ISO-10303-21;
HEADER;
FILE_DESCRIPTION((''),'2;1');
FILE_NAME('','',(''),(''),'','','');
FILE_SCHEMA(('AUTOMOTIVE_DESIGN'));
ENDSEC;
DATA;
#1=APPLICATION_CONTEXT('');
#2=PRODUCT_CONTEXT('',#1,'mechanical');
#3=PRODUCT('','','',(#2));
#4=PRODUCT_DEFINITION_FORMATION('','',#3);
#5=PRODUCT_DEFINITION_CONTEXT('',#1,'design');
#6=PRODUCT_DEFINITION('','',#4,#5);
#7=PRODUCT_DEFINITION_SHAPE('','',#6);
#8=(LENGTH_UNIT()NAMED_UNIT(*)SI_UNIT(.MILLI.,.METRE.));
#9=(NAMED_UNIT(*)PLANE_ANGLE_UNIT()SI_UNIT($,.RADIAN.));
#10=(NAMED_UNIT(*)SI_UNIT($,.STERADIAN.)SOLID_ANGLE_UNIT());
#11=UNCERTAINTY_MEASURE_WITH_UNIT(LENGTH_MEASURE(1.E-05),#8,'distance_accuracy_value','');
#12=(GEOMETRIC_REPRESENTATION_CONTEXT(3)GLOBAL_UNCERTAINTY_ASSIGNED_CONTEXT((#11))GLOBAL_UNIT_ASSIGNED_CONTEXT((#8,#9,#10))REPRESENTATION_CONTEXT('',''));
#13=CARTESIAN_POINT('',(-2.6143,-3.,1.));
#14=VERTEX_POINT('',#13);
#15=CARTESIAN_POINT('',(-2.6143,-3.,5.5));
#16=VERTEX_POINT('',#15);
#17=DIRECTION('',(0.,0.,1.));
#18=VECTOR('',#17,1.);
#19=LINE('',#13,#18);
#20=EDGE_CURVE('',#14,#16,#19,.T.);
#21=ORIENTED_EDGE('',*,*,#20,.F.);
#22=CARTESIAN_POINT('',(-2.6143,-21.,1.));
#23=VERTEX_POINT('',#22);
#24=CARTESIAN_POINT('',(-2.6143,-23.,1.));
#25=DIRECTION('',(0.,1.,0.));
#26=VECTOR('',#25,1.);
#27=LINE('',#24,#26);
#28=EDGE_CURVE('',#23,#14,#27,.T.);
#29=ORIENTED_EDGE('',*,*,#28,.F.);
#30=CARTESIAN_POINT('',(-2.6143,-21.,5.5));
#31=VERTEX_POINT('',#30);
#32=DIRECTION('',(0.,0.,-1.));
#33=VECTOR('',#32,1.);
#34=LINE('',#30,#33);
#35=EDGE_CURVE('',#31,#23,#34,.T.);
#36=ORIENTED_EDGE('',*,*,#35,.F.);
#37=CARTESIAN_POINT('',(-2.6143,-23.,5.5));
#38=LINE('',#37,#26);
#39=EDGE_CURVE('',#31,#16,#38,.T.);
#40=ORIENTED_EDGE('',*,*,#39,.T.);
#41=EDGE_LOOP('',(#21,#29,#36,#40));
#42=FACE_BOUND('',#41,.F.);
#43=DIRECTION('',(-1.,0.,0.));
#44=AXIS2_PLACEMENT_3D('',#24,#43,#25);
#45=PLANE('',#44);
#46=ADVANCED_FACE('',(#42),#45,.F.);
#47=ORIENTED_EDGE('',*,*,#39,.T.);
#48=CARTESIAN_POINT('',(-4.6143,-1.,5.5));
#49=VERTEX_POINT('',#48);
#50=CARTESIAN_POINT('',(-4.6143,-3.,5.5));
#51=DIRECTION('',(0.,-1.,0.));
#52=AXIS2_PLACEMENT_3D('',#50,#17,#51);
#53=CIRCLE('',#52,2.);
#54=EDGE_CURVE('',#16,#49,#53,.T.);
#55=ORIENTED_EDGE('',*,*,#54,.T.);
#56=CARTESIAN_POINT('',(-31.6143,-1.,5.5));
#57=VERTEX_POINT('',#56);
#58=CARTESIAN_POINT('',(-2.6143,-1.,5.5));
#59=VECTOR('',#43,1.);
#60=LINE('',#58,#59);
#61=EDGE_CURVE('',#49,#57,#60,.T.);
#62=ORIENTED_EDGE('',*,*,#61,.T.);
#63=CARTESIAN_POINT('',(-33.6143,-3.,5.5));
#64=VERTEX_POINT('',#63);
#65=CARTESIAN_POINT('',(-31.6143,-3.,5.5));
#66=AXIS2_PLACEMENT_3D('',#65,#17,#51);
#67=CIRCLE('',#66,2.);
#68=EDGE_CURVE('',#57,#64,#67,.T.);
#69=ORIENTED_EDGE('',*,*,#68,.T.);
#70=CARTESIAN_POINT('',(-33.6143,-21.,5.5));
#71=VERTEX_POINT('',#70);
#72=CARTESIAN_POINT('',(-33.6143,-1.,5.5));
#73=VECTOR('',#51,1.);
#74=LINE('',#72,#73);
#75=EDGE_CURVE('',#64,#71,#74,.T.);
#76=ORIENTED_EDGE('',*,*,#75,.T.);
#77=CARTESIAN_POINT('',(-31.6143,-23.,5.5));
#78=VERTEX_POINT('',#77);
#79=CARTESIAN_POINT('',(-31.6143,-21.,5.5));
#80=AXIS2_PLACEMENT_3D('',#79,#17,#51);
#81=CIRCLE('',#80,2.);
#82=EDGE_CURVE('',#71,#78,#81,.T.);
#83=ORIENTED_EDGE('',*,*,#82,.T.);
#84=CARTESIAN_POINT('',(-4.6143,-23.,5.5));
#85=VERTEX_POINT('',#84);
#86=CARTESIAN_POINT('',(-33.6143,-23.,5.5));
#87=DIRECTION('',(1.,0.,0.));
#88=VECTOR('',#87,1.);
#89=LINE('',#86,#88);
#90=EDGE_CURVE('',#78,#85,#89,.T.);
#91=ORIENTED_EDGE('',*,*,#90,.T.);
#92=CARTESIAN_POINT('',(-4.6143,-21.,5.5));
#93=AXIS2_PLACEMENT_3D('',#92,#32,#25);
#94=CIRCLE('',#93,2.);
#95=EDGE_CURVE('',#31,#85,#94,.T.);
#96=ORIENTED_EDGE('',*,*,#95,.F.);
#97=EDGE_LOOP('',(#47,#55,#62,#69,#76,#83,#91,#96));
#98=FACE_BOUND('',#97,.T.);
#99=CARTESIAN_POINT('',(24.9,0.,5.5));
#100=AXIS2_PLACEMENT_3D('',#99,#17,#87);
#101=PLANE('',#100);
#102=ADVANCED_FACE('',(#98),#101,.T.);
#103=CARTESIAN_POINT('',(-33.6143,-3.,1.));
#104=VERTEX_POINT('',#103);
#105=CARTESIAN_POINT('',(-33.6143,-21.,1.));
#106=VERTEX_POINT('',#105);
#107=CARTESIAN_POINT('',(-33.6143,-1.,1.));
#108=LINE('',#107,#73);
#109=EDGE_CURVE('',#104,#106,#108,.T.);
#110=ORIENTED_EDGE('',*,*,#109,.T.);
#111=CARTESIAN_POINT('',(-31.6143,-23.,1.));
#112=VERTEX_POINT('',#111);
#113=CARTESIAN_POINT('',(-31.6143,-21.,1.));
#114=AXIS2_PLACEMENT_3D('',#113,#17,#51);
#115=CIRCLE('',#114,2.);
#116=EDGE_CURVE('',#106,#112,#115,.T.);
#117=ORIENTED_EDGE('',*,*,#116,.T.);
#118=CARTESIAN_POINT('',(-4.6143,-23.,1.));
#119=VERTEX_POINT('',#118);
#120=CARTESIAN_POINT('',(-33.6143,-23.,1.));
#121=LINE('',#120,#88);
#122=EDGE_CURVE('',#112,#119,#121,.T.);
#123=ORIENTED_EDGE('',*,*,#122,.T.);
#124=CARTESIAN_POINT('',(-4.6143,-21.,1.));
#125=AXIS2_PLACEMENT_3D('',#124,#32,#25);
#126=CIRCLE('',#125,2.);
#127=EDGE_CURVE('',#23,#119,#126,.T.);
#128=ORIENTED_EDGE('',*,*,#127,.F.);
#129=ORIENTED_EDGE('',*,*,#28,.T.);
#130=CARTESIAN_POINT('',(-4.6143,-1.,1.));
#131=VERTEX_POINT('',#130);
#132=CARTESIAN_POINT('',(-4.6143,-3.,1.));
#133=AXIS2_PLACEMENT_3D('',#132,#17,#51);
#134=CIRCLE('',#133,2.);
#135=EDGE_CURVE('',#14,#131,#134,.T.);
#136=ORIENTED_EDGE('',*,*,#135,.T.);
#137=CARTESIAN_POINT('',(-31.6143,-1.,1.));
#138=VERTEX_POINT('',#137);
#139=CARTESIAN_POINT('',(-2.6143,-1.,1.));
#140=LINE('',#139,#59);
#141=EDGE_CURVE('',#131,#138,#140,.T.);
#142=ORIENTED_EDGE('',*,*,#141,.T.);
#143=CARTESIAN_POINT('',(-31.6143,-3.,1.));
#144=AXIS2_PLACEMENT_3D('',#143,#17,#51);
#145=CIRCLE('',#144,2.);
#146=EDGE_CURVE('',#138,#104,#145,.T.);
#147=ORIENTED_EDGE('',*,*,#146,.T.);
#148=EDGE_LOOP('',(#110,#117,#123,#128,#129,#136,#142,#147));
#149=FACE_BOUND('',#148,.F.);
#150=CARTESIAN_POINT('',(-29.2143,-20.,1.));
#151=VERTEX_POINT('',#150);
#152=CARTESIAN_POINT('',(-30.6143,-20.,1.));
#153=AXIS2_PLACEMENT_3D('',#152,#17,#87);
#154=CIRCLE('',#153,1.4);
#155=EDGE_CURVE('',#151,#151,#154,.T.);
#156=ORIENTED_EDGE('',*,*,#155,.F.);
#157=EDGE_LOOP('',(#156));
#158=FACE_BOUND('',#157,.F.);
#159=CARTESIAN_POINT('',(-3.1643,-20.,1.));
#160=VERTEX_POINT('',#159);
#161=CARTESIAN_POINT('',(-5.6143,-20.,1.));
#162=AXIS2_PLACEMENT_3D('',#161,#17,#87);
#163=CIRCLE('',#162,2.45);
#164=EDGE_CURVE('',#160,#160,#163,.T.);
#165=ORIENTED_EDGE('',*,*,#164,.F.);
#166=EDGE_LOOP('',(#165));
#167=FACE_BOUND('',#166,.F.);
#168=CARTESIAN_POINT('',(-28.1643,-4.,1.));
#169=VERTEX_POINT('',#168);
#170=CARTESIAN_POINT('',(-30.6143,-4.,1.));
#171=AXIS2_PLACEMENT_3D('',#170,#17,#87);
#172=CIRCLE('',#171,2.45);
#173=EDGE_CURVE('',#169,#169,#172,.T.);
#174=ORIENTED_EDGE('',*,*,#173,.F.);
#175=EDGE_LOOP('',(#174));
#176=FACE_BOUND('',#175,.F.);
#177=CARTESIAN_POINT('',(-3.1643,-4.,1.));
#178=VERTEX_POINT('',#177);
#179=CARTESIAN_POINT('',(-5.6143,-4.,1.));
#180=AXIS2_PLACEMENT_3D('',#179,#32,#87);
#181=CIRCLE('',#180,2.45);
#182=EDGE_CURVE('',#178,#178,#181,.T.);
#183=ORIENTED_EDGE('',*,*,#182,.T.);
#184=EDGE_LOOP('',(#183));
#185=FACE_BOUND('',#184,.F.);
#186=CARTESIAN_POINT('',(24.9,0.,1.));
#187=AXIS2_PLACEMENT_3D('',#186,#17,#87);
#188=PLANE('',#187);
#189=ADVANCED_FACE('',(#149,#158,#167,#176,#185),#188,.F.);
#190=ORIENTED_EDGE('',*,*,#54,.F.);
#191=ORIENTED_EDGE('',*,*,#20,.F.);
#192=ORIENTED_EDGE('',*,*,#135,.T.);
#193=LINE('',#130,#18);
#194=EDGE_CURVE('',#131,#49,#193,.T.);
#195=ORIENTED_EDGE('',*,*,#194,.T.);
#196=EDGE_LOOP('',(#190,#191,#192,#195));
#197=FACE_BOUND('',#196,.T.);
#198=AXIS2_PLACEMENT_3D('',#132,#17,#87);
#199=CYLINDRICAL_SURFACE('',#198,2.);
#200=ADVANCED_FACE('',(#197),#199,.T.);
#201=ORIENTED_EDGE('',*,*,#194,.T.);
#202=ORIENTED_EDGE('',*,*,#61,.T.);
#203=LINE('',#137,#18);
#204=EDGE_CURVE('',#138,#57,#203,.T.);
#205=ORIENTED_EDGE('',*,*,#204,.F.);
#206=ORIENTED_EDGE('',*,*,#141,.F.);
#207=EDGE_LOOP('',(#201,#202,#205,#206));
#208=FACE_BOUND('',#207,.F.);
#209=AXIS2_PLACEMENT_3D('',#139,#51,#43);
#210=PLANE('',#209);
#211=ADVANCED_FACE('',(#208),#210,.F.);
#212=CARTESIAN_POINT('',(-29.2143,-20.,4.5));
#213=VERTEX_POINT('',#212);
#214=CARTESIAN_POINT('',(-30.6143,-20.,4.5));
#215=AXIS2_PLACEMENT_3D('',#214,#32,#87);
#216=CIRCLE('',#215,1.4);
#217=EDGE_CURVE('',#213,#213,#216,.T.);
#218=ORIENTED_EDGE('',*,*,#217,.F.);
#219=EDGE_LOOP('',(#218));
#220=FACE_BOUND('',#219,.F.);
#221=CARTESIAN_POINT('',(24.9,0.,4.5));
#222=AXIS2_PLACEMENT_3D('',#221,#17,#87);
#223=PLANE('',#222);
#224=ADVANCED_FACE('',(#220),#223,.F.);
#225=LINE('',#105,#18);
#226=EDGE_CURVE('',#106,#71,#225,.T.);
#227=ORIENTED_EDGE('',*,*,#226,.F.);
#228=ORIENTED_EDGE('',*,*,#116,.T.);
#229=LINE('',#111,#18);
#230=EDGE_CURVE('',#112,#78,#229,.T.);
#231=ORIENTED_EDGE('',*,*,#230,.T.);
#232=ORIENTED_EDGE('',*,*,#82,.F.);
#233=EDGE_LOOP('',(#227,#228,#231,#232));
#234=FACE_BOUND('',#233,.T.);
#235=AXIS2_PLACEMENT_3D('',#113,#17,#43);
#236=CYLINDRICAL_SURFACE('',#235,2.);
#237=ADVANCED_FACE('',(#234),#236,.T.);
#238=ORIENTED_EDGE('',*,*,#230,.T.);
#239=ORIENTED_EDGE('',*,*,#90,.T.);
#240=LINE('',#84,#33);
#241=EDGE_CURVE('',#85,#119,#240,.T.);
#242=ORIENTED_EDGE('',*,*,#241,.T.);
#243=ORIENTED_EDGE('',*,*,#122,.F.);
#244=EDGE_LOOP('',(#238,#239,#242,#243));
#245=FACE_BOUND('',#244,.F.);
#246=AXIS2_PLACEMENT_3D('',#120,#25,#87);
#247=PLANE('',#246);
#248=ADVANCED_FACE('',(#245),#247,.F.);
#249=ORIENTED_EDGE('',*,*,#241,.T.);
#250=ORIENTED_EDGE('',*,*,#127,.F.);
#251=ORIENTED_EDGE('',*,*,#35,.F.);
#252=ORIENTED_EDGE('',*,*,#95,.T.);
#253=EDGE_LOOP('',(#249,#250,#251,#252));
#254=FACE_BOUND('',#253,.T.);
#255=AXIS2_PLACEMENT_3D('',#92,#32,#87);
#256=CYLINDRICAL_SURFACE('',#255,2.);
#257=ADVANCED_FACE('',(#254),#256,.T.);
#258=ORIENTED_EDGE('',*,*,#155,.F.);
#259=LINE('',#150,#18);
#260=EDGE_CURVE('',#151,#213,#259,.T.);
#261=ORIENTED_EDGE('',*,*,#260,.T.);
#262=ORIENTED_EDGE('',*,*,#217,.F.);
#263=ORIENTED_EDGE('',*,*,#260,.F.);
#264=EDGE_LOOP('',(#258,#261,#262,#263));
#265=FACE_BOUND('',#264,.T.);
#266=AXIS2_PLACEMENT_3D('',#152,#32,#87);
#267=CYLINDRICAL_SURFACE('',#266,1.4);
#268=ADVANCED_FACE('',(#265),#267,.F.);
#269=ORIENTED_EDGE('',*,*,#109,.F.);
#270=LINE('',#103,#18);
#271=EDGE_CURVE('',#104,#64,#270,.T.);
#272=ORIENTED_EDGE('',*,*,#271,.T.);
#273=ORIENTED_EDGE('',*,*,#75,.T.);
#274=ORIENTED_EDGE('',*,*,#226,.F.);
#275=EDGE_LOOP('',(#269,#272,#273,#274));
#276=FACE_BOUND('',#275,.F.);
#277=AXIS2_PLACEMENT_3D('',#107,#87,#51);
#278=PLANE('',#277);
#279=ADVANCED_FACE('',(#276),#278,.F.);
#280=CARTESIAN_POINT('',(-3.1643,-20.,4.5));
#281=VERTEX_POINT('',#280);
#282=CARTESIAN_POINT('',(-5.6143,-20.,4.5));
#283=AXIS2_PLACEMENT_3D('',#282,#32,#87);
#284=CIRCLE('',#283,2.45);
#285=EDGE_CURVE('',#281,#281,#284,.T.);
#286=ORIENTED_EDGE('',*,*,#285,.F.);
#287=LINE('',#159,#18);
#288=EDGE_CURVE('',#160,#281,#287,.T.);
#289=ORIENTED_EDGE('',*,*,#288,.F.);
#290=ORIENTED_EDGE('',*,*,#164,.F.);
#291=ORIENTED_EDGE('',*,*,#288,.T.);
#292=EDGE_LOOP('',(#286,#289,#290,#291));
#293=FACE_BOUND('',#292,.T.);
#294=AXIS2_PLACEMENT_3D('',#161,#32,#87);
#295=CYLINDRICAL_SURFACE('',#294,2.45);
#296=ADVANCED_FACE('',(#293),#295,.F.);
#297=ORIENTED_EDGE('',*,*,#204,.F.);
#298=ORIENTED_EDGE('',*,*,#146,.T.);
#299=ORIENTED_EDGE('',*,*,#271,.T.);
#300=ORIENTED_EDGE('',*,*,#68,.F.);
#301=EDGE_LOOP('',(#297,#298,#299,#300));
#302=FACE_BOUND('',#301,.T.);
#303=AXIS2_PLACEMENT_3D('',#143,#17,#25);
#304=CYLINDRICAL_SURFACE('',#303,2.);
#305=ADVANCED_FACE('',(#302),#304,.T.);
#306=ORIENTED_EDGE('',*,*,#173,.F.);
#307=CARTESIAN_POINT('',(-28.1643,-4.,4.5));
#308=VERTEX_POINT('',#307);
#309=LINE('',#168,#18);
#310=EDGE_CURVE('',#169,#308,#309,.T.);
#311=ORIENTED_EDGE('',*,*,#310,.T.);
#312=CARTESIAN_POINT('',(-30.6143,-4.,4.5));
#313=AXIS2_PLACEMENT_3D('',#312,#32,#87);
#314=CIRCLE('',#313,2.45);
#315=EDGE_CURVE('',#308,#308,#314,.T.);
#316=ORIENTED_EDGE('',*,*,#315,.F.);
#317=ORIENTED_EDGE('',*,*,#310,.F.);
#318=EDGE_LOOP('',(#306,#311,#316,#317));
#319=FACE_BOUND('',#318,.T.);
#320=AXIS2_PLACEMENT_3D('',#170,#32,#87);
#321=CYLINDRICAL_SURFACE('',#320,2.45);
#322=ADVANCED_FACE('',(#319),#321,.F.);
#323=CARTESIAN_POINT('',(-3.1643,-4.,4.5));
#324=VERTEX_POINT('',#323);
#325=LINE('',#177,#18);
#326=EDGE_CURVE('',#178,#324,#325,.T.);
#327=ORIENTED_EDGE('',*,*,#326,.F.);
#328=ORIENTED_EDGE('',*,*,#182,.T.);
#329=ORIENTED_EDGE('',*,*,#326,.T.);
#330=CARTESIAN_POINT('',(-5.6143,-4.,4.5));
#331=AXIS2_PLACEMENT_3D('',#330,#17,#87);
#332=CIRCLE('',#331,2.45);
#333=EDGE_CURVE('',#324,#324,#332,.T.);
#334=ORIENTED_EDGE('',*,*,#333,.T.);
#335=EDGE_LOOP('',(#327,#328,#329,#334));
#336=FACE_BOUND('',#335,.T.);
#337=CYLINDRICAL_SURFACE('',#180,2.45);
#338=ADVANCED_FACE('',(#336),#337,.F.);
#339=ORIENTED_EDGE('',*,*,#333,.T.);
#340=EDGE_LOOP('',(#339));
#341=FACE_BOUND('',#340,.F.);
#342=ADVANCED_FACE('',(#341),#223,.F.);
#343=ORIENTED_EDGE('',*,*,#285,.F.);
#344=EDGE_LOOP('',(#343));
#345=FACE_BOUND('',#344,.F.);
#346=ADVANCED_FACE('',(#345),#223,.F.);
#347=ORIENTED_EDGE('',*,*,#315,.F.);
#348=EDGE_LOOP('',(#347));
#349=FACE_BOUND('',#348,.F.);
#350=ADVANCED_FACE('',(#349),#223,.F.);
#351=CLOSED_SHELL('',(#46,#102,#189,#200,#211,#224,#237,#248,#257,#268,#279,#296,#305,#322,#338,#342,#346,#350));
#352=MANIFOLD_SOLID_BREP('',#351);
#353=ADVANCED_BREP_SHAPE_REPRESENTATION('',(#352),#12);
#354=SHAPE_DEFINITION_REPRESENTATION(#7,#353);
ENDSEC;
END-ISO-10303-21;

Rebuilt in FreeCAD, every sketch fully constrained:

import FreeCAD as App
import Part
import Sketcher


def edges_at(feature, points):
    """Names of the edges that pass closest to the given points."""
    edges = feature.Shape.Edges
    near = lambda p: min(range(len(edges)), key=lambda i: edges[i].distToShape(Part.Vertex(*p))[0])
    return sorted({f"Edge{near(p) + 1}" for p in points})


def add_polygon(sketch, points):
    """Adds a closed chain of lines whose ends are joined by coincident constraints."""
    first, n = sketch.GeometryCount, len(points)
    for a, b in zip(points, points[1:] + points[:1]):
        sketch.addGeometry(Part.LineSegment(App.Vector(*a, 0), App.Vector(*b, 0)), False)
    for i in range(n):
        sketch.addConstraint(Sketcher.Constraint("Coincident", first + i, 2, first + (i + 1) % n, 1))

doc = App.newDocument("Part")
body = doc.addObject("PartDesign::Body", "Body")

# Sketch on XY plane
sketch1 = body.newObject("Sketcher::SketchObject", "Sketch")
sketch1.AttachmentSupport = (doc.getObject("XY_Plane"), [""])
sketch1.MapMode = "FlatFace"
sketch1.AttachmentOffset = App.Placement(App.Vector(0, 0, 1), App.Rotation())
add_polygon(sketch1, [(-2.6, -23), (-2.6, -1), (-33.6, -1), (-33.6, -23)])  # lines 0-3
sketch1.addGeometry(Part.Circle(App.Vector(-5.6, -4, 0), App.Vector(0, 0, 1), 2.5), False)  # 4
sketch1.addGeometry(Part.Circle(App.Vector(-5.6, -20, 0), App.Vector(0, 0, 1), 2.5), False)  # 5
sketch1.addGeometry(Part.Circle(App.Vector(-30.6, -20, 0), App.Vector(0, 0, 1), 1.4), False)  # 6
sketch1.addGeometry(Part.Circle(App.Vector(-30.6, -4, 0), App.Vector(0, 0, 1), 2.5), False)  # 7
sketch1.addConstraint([
    Sketcher.Constraint("Vertical", 0),
    Sketcher.Constraint("Horizontal", 1),
    Sketcher.Constraint("Vertical", 2),
    Sketcher.Constraint("Horizontal", 3),
    Sketcher.Constraint("Equal", 4, 5),
    Sketcher.Constraint("Equal", 5, 7),
    Sketcher.Constraint("Horizontal", 5, 3, 6, 3),
    Sketcher.Constraint("Horizontal", 4, 3, 7, 3),
    Sketcher.Constraint("Vertical", 4, 3, 5, 3),
    Sketcher.Constraint("Vertical", 6, 3, 7, 3),
    Sketcher.Constraint("Diameter", 4, 4.9),
    Sketcher.Constraint("DistanceX", 4, 3, 0, 2, 3.0),
    Sketcher.Constraint("DistanceY", 4, 3, 0, 2, 3.0),
    Sketcher.Constraint("DistanceX", 1, 2, 7, 3, 3.0),
    Sketcher.Constraint("DistanceY", 2, 2, 6, 3, 3.0),
    Sketcher.Constraint("Diameter", 6, 2.8),
    Sketcher.Constraint("DistanceX", 1, 2, 1, 1, 31.0),
    Sketcher.Constraint("DistanceY", 0, 1, 0, 2, 22.0),
    Sketcher.Constraint("DistanceY", 4, 3, -1, 1, 4.0),
    Sketcher.Constraint("DistanceX", 4, 3, -1, 1, 5.6143),
])
pad1 = body.newObject("PartDesign::Pad", "Pad")
pad1.Profile = sketch1
pad1.Length = 3.5

# Sketch on XY plane
sketch2 = body.newObject("Sketcher::SketchObject", "Sketch001")
sketch2.AttachmentSupport = (doc.getObject("XY_Plane"), [""])
sketch2.MapMode = "FlatFace"
sketch2.AttachmentOffset = App.Placement(App.Vector(0, 0, 4.5), App.Rotation())
add_polygon(sketch2, [(-3, -1), (-34, -1), (-34, -23), (-3, -23)])  # lines 0-3
sketch2.addConstraint([
    Sketcher.Constraint("Horizontal", 0),
    Sketcher.Constraint("Vertical", 1),
    Sketcher.Constraint("Horizontal", 2),
    Sketcher.Constraint("Vertical", 3),
    Sketcher.Constraint("DistanceX", 0, 2, 0, 1, 31.0),
    Sketcher.Constraint("DistanceY", 1, 2, 1, 1, 22.0),
    Sketcher.Constraint("DistanceY", 0, 2, -1, 1, 1.0),
    Sketcher.Constraint("DistanceX", 0, 2, -1, 1, 33.6143),
])
pad2 = body.newObject("PartDesign::Pad", "Pad001")
pad2.Profile = sketch2
pad2.Length = 1
doc.recompute()

fillet = body.newObject("PartDesign::Fillet", "Fillet")
fillet.Base = (pad2, edges_at(pad2, [
    (-33.614, -23, 3.25),
    (-2.614, -23, 3.25),
    (-33.614, -1, 3.25),
    (-2.614, -1, 3.25),
]))
fillet.Radius = 2

doc.recompute()
